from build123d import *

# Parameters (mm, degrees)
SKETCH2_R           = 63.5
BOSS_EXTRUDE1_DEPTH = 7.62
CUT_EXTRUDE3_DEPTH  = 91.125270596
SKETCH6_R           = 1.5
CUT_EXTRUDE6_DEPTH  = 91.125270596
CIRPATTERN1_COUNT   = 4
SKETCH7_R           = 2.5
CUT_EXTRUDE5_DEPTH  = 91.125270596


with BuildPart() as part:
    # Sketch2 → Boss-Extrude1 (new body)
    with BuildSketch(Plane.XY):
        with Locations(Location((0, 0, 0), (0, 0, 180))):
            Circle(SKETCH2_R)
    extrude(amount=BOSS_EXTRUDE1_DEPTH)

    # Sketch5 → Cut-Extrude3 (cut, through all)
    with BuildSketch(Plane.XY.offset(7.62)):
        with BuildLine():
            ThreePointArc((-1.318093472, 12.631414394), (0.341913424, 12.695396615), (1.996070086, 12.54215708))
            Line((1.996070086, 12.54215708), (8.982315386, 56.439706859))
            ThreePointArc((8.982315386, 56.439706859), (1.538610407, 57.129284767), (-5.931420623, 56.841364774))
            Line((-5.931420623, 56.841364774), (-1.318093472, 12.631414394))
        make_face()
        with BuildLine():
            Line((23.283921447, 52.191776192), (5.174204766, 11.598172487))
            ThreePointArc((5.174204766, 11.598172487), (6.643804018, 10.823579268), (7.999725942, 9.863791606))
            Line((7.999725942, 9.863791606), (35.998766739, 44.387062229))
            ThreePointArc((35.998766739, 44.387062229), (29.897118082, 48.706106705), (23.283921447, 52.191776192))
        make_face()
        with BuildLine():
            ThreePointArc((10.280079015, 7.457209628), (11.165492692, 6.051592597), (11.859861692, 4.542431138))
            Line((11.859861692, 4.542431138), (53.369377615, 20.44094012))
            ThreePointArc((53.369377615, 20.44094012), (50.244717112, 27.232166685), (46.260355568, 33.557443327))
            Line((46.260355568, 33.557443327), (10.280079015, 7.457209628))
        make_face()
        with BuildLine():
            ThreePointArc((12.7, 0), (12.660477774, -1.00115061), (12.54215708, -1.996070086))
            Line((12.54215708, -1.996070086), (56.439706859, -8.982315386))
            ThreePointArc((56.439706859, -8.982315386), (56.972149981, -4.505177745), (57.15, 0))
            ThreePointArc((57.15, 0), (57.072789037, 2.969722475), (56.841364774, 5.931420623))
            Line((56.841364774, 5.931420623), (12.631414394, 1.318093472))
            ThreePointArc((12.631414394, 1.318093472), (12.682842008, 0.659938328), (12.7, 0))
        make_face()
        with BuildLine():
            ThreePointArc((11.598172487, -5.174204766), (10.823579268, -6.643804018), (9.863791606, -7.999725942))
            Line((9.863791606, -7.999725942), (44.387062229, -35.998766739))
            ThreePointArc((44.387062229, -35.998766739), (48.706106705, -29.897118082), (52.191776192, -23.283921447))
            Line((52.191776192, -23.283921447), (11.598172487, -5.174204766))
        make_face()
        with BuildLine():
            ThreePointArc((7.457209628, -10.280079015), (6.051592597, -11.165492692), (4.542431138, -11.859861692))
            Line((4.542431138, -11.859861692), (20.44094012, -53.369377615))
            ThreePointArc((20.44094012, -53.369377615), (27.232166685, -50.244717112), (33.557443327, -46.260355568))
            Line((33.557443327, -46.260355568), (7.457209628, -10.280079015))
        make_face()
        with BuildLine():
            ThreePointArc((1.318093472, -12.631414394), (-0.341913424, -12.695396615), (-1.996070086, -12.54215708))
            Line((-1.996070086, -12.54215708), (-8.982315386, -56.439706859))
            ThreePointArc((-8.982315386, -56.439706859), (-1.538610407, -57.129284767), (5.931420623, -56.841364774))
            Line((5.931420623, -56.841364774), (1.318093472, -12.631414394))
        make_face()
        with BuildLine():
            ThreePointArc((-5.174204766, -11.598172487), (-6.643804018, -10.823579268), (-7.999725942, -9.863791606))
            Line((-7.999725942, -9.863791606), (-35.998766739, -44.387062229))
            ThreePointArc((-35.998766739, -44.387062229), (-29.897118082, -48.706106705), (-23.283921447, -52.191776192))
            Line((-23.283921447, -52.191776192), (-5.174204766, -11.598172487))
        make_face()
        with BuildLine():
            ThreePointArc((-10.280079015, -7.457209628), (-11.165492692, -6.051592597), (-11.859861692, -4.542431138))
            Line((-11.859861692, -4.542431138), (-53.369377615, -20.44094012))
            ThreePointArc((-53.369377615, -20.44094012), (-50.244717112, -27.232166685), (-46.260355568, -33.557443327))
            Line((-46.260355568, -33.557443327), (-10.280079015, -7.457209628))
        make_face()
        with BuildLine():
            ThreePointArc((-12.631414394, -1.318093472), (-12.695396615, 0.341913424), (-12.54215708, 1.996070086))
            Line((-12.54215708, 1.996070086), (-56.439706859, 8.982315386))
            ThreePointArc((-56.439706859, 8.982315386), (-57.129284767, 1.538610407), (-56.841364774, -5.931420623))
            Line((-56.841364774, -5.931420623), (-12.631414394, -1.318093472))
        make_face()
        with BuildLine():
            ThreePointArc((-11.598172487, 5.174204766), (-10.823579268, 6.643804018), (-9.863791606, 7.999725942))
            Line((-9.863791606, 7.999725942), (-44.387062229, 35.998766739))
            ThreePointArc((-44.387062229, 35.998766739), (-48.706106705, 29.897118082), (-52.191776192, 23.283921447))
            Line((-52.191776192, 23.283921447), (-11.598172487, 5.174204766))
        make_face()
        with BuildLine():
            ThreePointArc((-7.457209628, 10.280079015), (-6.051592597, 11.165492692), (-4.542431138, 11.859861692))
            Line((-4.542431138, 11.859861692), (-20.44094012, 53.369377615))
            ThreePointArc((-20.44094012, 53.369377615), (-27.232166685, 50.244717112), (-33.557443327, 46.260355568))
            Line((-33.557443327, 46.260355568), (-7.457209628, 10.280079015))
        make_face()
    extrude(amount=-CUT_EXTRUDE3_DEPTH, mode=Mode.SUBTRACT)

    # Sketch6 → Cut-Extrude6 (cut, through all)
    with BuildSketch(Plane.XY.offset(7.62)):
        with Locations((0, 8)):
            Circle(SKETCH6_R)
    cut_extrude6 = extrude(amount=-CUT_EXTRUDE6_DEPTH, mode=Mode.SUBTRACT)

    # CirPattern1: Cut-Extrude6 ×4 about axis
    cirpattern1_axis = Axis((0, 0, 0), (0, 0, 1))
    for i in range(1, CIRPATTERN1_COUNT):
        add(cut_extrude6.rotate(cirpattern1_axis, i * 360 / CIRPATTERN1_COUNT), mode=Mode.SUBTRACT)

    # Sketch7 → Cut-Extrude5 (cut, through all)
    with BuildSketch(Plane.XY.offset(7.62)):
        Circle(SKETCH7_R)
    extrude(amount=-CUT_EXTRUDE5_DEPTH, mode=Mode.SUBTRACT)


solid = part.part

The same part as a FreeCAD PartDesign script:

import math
import FreeCAD as App
import Part
import Sketcher
Q = App.Units.Quantity

doc = App.newDocument("Part")
body = doc.addObject("PartDesign::Body", "Body")

# Sketch on XY plane
sketch1 = body.newObject("Sketcher::SketchObject", "Sketch")
sketch1.AttachmentSupport = (doc.getObject("XY_Plane"), [""])
sketch1.MapMode = "FlatFace"
sketch1.addGeometry(Part.Circle(App.Vector(0, 0, 0), App.Vector(0, 0, 1), 64), False)
sketch1.addConstraint(Sketcher.Constraint("Coincident", 0, 3, -1, 1))
sketch1.addConstraint(Sketcher.Constraint("Diameter", 0, Q("5 in")))
pad1 = body.newObject("PartDesign::Pad", "Pad")
pad1.Profile = sketch1
pad1.Length = Q("0.3 in")

# Sketch on XY plane
sketch2 = body.newObject("Sketcher::SketchObject", "Sketch001")
sketch2.AttachmentSupport = (doc.getObject("XY_Plane"), [""])
sketch2.MapMode = "FlatFace"
sketch2.AttachmentOffset = App.Placement(App.Vector(0, 0, 0.3 * 25.4), App.Rotation())
sketch2.addGeometry(Part.ArcOfCircle(Part.Circle(App.Vector(0, 0, 0), App.Vector(0, 0, 1), 12.7), math.radians(80.96), math.radians(95.96)), False)
sketch2.addGeometry(Part.LineSegment(App.Vector(2, 12.5, 0), App.Vector(9, 56.4, 0)), False)
sketch2.addGeometry(Part.ArcOfCircle(Part.Circle(App.Vector(0, 0, 0), App.Vector(0, 0, 1), 57.2), math.radians(80.96), math.radians(95.96)), False)
sketch2.addGeometry(Part.LineSegment(App.Vector(-5.9, 56.8, 0), App.Vector(-1.3, 12.6, 0)), False)
sketch2.addGeometry(Part.LineSegment(App.Vector(23.3, 52.2, 0), App.Vector(5.2, 11.6, 0)), False)
sketch2.addGeometry(Part.ArcOfCircle(Part.Circle(App.Vector(0, 0, 0), App.Vector(0, 0, 1), 12.7), math.radians(50.96), math.radians(65.96)), False)
sketch2.addGeometry(Part.LineSegment(App.Vector(8, 9.9, 0), App.Vector(36, 44.4, 0)), False)
sketch2.addGeometry(Part.ArcOfCircle(Part.Circle(App.Vector(0, 0, 0), App.Vector(0, 0, 1), 57.2), math.radians(50.96), math.radians(65.96)), False)
sketch2.addGeometry(Part.ArcOfCircle(Part.Circle(App.Vector(0, 0, 0), App.Vector(0, 0, 1), 12.7), math.radians(20.96), math.radians(35.96)), False)
sketch2.addGeometry(Part.LineSegment(App.Vector(11.9, 4.5, 0), App.Vector(53.4, 20.4, 0)), False)
sketch2.addGeometry(Part.ArcOfCircle(Part.Circle(App.Vector(0, 0, 0), App.Vector(0, 0, 1), 57.1), math.radians(20.96), math.radians(35.96)), False)
sketch2.addGeometry(Part.LineSegment(App.Vector(46.3, 33.6, 0), App.Vector(10.3, 7.5, 0)), False)
sketch2.addGeometry(Part.ArcOfCircle(Part.Circle(App.Vector(0, 0, 0), App.Vector(0, 0, 1), 12.7), math.radians(-9.04), math.radians(0)), False)
sketch2.addGeometry(Part.LineSegment(App.Vector(12.5, -2, 0), App.Vector(56.4, -9, 0)), False)
sketch2.addGeometry(Part.ArcOfCircle(Part.Circle(App.Vector(0, 0, 0), App.Vector(0, 0, 1), 57.2), math.radians(-9.04), math.radians(0)), False)
sketch2.addGeometry(Part.ArcOfCircle(Part.Circle(App.Vector(0, 0, 0), App.Vector(0, 0, 1), 57.1), math.radians(0), math.radians(5.96)), False)
sketch2.addGeometry(Part.LineSegment(App.Vector(56.8, 5.9, 0), App.Vector(12.6, 1.3, 0)), False)
sketch2.addGeometry(Part.ArcOfCircle(Part.Circle(App.Vector(0, 0, 0), App.Vector(0, 0, 1), 12.7), math.radians(0), math.radians(5.96)), False)
sketch2.addGeometry(Part.ArcOfCircle(Part.Circle(App.Vector(0, 0, 0), App.Vector(0, 0, 1), 12.7), math.radians(-39.04), math.radians(-24.04)), False)
sketch2.addGeometry(Part.LineSegment(App.Vector(9.9, -8, 0), App.Vector(44.4, -36, 0)), False)
sketch2.addGeometry(Part.ArcOfCircle(Part.Circle(App.Vector(0, 0, 0), App.Vector(0, 0, 1), 57.2), math.radians(-39.04), math.radians(-24.04)), False)
sketch2.addGeometry(Part.LineSegment(App.Vector(52.2, -23.3, 0), App.Vector(11.6, -5.2, 0)), False)
sketch2.addGeometry(Part.ArcOfCircle(Part.Circle(App.Vector(0, 0, 0), App.Vector(0, 0, 1), 12.7), math.radians(-69.04), math.radians(-54.04)), False)
sketch2.addGeometry(Part.LineSegment(App.Vector(4.5, -11.9, 0), App.Vector(20.4, -53.4, 0)), False)
sketch2.addGeometry(Part.ArcOfCircle(Part.Circle(App.Vector(0, 0, 0), App.Vector(0, 0, 1), 57.1), math.radians(-69.04), math.radians(-54.04)), False)
sketch2.addGeometry(Part.LineSegment(App.Vector(33.6, -46.3, 0), App.Vector(7.5, -10.3, 0)), False)
sketch2.addGeometry(Part.ArcOfCircle(Part.Circle(App.Vector(0, 0, 0), App.Vector(0, 0, 1), 12.7), math.radians(-99.04), math.radians(-84.04)), False)
sketch2.addGeometry(Part.LineSegment(App.Vector(-2, -12.5, 0), App.Vector(-9, -56.4, 0)), False)
sketch2.addGeometry(Part.ArcOfCircle(Part.Circle(App.Vector(0, 0, 0), App.Vector(0, 0, 1), 57.2), math.radians(-99.04), math.radians(-84.04)), False)
sketch2.addGeometry(Part.LineSegment(App.Vector(5.9, -56.8, 0), App.Vector(1.3, -12.6, 0)), False)
sketch2.addGeometry(Part.ArcOfCircle(Part.Circle(App.Vector(0, 0, 0), App.Vector(0, 0, 1), 12.7), math.radians(-129.04), math.radians(-114.04)), False)
sketch2.addGeometry(Part.LineSegment(App.Vector(-8, -9.9, 0), App.Vector(-36, -44.4, 0)), False)
sketch2.addGeometry(Part.ArcOfCircle(Part.Circle(App.Vector(0, 0, 0), App.Vector(0, 0, 1), 57.2), math.radians(-129.04), math.radians(-114.04)), False)
sketch2.addGeometry(Part.LineSegment(App.Vector(-23.3, -52.2, 0), App.Vector(-5.2, -11.6, 0)), False)
sketch2.addGeometry(Part.ArcOfCircle(Part.Circle(App.Vector(0, 0, 0), App.Vector(0, 0, 1), 12.7), math.radians(-159.04), math.radians(-144.04)), False)
sketch2.addGeometry(Part.LineSegment(App.Vector(-11.9, -4.5, 0), App.Vector(-53.4, -20.4, 0)), False)
sketch2.addGeometry(Part.ArcOfCircle(Part.Circle(App.Vector(0, 0, 0), App.Vector(0, 0, 1), 57.1), math.radians(-159.04), math.radians(-144.04)), False)
sketch2.addGeometry(Part.LineSegment(App.Vector(-46.3, -33.6, 0), App.Vector(-10.3, -7.5, 0)), False)
sketch2.addGeometry(Part.ArcOfCircle(Part.Circle(App.Vector(0, 0, 0), App.Vector(0, 0, 1), 12.7), math.radians(170.96), math.radians(185.96)), False)
sketch2.addGeometry(Part.LineSegment(App.Vector(-12.5, 2, 0), App.Vector(-56.4, 9, 0)), False)
sketch2.addGeometry(Part.ArcOfCircle(Part.Circle(App.Vector(0, 0, 0), App.Vector(0, 0, 1), 57.2), math.radians(170.96), math.radians(185.96)), False)
sketch2.addGeometry(Part.LineSegment(App.Vector(-56.8, -5.9, 0), App.Vector(-12.6, -1.3, 0)), False)
sketch2.addGeometry(Part.ArcOfCircle(Part.Circle(App.Vector(0, 0, 0), App.Vector(0, 0, 1), 12.7), math.radians(140.96), math.radians(155.96)), False)
sketch2.addGeometry(Part.LineSegment(App.Vector(-9.9, 8, 0), App.Vector(-44.4, 36, 0)), False)
sketch2.addGeometry(Part.ArcOfCircle(Part.Circle(App.Vector(0, 0, 0), App.Vector(0, 0, 1), 57.2), math.radians(140.96), math.radians(155.96)), False)
sketch2.addGeometry(Part.LineSegment(App.Vector(-52.2, 23.3, 0), App.Vector(-11.6, 5.2, 0)), False)
sketch2.addGeometry(Part.ArcOfCircle(Part.Circle(App.Vector(0, 0, 0), App.Vector(0, 0, 1), 12.7), math.radians(110.96), math.radians(125.96)), False)
sketch2.addGeometry(Part.LineSegment(App.Vector(-4.5, 11.9, 0), App.Vector(-20.4, 53.4, 0)), False)
sketch2.addGeometry(Part.ArcOfCircle(Part.Circle(App.Vector(0, 0, 0), App.Vector(0, 0, 1), 57.1), math.radians(110.96), math.radians(125.96)), False)
sketch2.addGeometry(Part.LineSegment(App.Vector(-33.6, 46.3, 0), App.Vector(-7.5, 10.3, 0)), False)
sketch2.addConstraint(Sketcher.Constraint("Coincident", 0, 1, 1, 1))
sketch2.addConstraint(Sketcher.Constraint("Coincident", 1, 2, 2, 1))
sketch2.addConstraint(Sketcher.Constraint("Coincident", 2, 2, 3, 1))
sketch2.addConstraint(Sketcher.Constraint("Coincident", 3, 2, 0, 2))
sketch2.addConstraint(Sketcher.Constraint("Coincident", 4, 2, 5, 2))
sketch2.addConstraint(Sketcher.Constraint("Coincident", 5, 1, 6, 1))
sketch2.addConstraint(Sketcher.Constraint("Coincident", 6, 2, 7, 1))
sketch2.addConstraint(Sketcher.Constraint("Coincident", 7, 2, 4, 1))
sketch2.addConstraint(Sketcher.Constraint("Coincident", 8, 1, 9, 1))
sketch2.addConstraint(Sketcher.Constraint("Coincident", 9, 2, 10, 1))
sketch2.addConstraint(Sketcher.Constraint("Coincident", 10, 2, 11, 1))
sketch2.addConstraint(Sketcher.Constraint("Coincident", 11, 2, 8, 2))
sketch2.addConstraint(Sketcher.Constraint("Coincident", 12, 1, 13, 1))
sketch2.addConstraint(Sketcher.Constraint("Coincident", 13, 2, 14, 1))
sketch2.addConstraint(Sketcher.Constraint("Tangent", 14, 2, 15, 1))
sketch2.addConstraint(Sketcher.Constraint("Coincident", 15, 2, 16, 1))
sketch2.addConstraint(Sketcher.Constraint("Coincident", 16, 2, 17, 2))
sketch2.addConstraint(Sketcher.Constraint("Tangent", 17, 1, 12, 2))
sketch2.addConstraint(Sketcher.Constraint("Coincident", 18, 1, 19, 1))
sketch2.addConstraint(Sketcher.Constraint("Coincident", 19, 2, 20, 1))
sketch2.addConstraint(Sketcher.Constraint("Coincident", 20, 2, 21, 1))
sketch2.addConstraint(Sketcher.Constraint("Coincident", 21, 2, 18, 2))
sketch2.addConstraint(Sketcher.Constraint("Coincident", 22, 1, 23, 1))
sketch2.addConstraint(Sketcher.Constraint("Coincident", 23, 2, 24, 1))
sketch2.addConstraint(Sketcher.Constraint("Coincident", 24, 2, 25, 1))
sketch2.addConstraint(Sketcher.Constraint("Coincident", 25, 2, 22, 2))
sketch2.addConstraint(Sketcher.Constraint("Coincident", 26, 1, 27, 1))
sketch2.addConstraint(Sketcher.Constraint("Coincident", 27, 2, 28, 1))
sketch2.addConstraint(Sketcher.Constraint("Coincident", 28, 2, 29, 1))
sketch2.addConstraint(Sketcher.Constraint("Coincident", 29, 2, 26, 2))
sketch2.addConstraint(Sketcher.Constraint("Coincident", 30, 1, 31, 1))
sketch2.addConstraint(Sketcher.Constraint("Coincident", 31, 2, 32, 1))
sketch2.addConstraint(Sketcher.Constraint("Coincident", 32, 2, 33, 1))
sketch2.addConstraint(Sketcher.Constraint("Coincident", 33, 2, 30, 2))
sketch2.addConstraint(Sketcher.Constraint("Coincident", 34, 1, 35, 1))
sketch2.addConstraint(Sketcher.Constraint("Coincident", 35, 2, 36, 1))
sketch2.addConstraint(Sketcher.Constraint("Coincident", 36, 2, 37, 1))
sketch2.addConstraint(Sketcher.Constraint("Coincident", 37, 2, 34, 2))
sketch2.addConstraint(Sketcher.Constraint("Coincident", 38, 1, 39, 1))
sketch2.addConstraint(Sketcher.Constraint("Coincident", 39, 2, 40, 1))
sketch2.addConstraint(Sketcher.Constraint("Coincident", 40, 2, 41, 1))
sketch2.addConstraint(Sketcher.Constraint("Coincident", 41, 2, 38, 2))
sketch2.addConstraint(Sketcher.Constraint("Coincident", 42, 1, 43, 1))
sketch2.addConstraint(Sketcher.Constraint("Coincident", 43, 2, 44, 1))
sketch2.addConstraint(Sketcher.Constraint("Coincident", 44, 2, 45, 1))
sketch2.addConstraint(Sketcher.Constraint("Coincident", 45, 2, 42, 2))
sketch2.addConstraint(Sketcher.Constraint("Coincident", 46, 1, 47, 1))
sketch2.addConstraint(Sketcher.Constraint("Coincident", 47, 2, 48, 1))
sketch2.addConstraint(Sketcher.Constraint("Coincident", 48, 2, 49, 1))
sketch2.addConstraint(Sketcher.Constraint("Coincident", 49, 2, 46, 2))
sketch2.addConstraint(Sketcher.Constraint("Coincident", 0, 3, -1, 1))
sketch2.addConstraint(Sketcher.Constraint("Coincident", 2, 3, -1, 1))
sketch2.addConstraint(Sketcher.Constraint("Coincident", 5, 3, -1, 1))
sketch2.addConstraint(Sketcher.Constraint("Coincident", 7, 3, -1, 1))
sketch2.addConstraint(Sketcher.Constraint("Coincident", 8, 3, -1, 1))
sketch2.addConstraint(Sketcher.Constraint("Coincident", 10, 3, -1, 1))
sketch2.addConstraint(Sketcher.Constraint("Coincident", 12, 3, -1, 1))
sketch2.addConstraint(Sketcher.Constraint("Coincident", 14, 3, -1, 1))
sketch2.addConstraint(Sketcher.Constraint("Coincident", 18, 3, -1, 1))
sketch2.addConstraint(Sketcher.Constraint("Coincident", 20, 3, -1, 1))
sketch2.addConstraint(Sketcher.Constraint("Coincident", 22, 3, -1, 1))
sketch2.addConstraint(Sketcher.Constraint("Coincident", 24, 3, -1, 1))
sketch2.addConstraint(Sketcher.Constraint("Coincident", 26, 3, -1, 1))
sketch2.addConstraint(Sketcher.Constraint("Coincident", 28, 3, -1, 1))
sketch2.addConstraint(Sketcher.Constraint("Coincident", 30, 3, -1, 1))
sketch2.addConstraint(Sketcher.Constraint("Coincident", 32, 3, -1, 1))
sketch2.addConstraint(Sketcher.Constraint("Coincident", 34, 3, -1, 1))
sketch2.addConstraint(Sketcher.Constraint("Coincident", 36, 3, -1, 1))
sketch2.addConstraint(Sketcher.Constraint("Coincident", 38, 3, -1, 1))
sketch2.addConstraint(Sketcher.Constraint("Coincident", 40, 3, -1, 1))
sketch2.addConstraint(Sketcher.Constraint("Coincident", 42, 3, -1, 1))
sketch2.addConstraint(Sketcher.Constraint("Coincident", 44, 3, -1, 1))
sketch2.addConstraint(Sketcher.Constraint("Coincident", 46, 3, -1, 1))
sketch2.addConstraint(Sketcher.Constraint("Coincident", 48, 3, -1, 1))
sketch2.addConstraint(Sketcher.Constraint("Equal", 0, 5))
sketch2.addConstraint(Sketcher.Constraint("Equal", 2, 7))
sketch2.addConstraint(Sketcher.Constraint("Equal", 5, 8))
sketch2.addConstraint(Sketcher.Constraint("Equal", 7, 10))
sketch2.addConstraint(Sketcher.Constraint("Equal", 8, 12))
sketch2.addConstraint(Sketcher.Constraint("Equal", 10, 14))
sketch2.addConstraint(Sketcher.Constraint("Equal", 14, 15))
sketch2.addConstraint(Sketcher.Constraint("Equal", 12, 17))
sketch2.addConstraint(Sketcher.Constraint("Equal", 17, 18))
sketch2.addConstraint(Sketcher.Constraint("Equal", 15, 20))
sketch2.addConstraint(Sketcher.Constraint("Equal", 18, 22))
sketch2.addConstraint(Sketcher.Constraint("Equal", 20, 24))
sketch2.addConstraint(Sketcher.Constraint("Equal", 22, 26))
sketch2.addConstraint(Sketcher.Constraint("Equal", 24, 28))
sketch2.addConstraint(Sketcher.Constraint("Equal", 26, 30))
sketch2.addConstraint(Sketcher.Constraint("Equal", 28, 32))
sketch2.addConstraint(Sketcher.Constraint("Equal", 30, 34))
sketch2.addConstraint(Sketcher.Constraint("Equal", 32, 36))
sketch2.addConstraint(Sketcher.Constraint("Equal", 34, 38))
sketch2.addConstraint(Sketcher.Constraint("Equal", 36, 40))
sketch2.addConstraint(Sketcher.Constraint("Equal", 38, 42))
sketch2.addConstraint(Sketcher.Constraint("Equal", 40, 44))
sketch2.addConstraint(Sketcher.Constraint("Equal", 42, 46))
sketch2.addConstraint(Sketcher.Constraint("Equal", 44, 48))
sketch2.addConstraint(Sketcher.Constraint("PointOnObject", 14, 2, -1))
sketch2.addConstraint(Sketcher.Constraint("PointOnObject", 17, 1, -1))
sketch2.addConstraint(Sketcher.Constraint("Perpendicular", 1, 13))
sketch2.addConstraint(Sketcher.Constraint("Perpendicular", 3, 16))
sketch2.addConstraint(Sketcher.Constraint("Perpendicular", 6, 19))
sketch2.addConstraint(Sketcher.Constraint("Perpendicular", 4, 21))
sketch2.addConstraint(Sketcher.Constraint("Perpendicular", 9, 23))
sketch2.addConstraint(Sketcher.Constraint("Perpendicular", 11, 25))
sketch2.addConstraint(Sketcher.Constraint("Perpendicular", 13, 27))
sketch2.addConstraint(Sketcher.Constraint("Perpendicular", 16, 29))
sketch2.addConstraint(Sketcher.Constraint("Perpendicular", 19, 31))
sketch2.addConstraint(Sketcher.Constraint("Perpendicular", 21, 33))
sketch2.addConstraint(Sketcher.Constraint("Perpendicular", 23, 35))
sketch2.addConstraint(Sketcher.Constraint("Perpendicular", 25, 37))
sketch2.addConstraint(Sketcher.Constraint("Perpendicular", 27, 39))
sketch2.addConstraint(Sketcher.Constraint("Perpendicular", 29, 41))
sketch2.addConstraint(Sketcher.Constraint("Perpendicular", 31, 43))
sketch2.addConstraint(Sketcher.Constraint("Perpendicular", 33, 45))
sketch2.addConstraint(Sketcher.Constraint("Perpendicular", 35, 47))
sketch2.addConstraint(Sketcher.Constraint("Perpendicular", 37, 49))
sketch2.addConstraint(Sketcher.Constraint("Radius", 0, Q("0.5 in")))
sketch2.addConstraint(Sketcher.Constraint("Radius", 2, Q("2.25 in")))
sketch2.addConstraint(Sketcher.Constraint("DistanceX", -1, 1, 0, 1, 1.99607))
sketch2.addConstraint(Sketcher.Constraint("DistanceX", 2, 2, -1, 1, 5.931421))
sketch2.addConstraint(Sketcher.Constraint("DistanceY", -1, 1, 5, 1, 9.863792))
sketch2.addConstraint(Sketcher.Constraint("DistanceX", -1, 1, 7, 2, 23.283921))
sketch2.addConstraint(Sketcher.Constraint("DistanceX", -1, 1, 8, 1, 11.859862))
sketch2.addConstraint(Sketcher.Constraint("DistanceY", -1, 1, 9, 2, 20.44094))
sketch2.addConstraint(Sketcher.Constraint("DistanceX", -1, 1, 11, 2, 10.280079))
sketch2.addConstraint(Sketcher.Constraint("DistanceY", 12, 1, -1, 1, 1.99607))
sketch2.addConstraint(Sketcher.Constraint("DistanceY", -1, 1, 15, 2, 5.931421))
sketch2.addConstraint(Sketcher.Constraint("DistanceX", -1, 1, 18, 1, 9.863792))
sketch2.addConstraint(Sketcher.Constraint("DistanceY", 20, 2, -1, 1, 23.283921))
sketch2.addConstraint(Sketcher.Constraint("DistanceX", -1, 1, 22, 1, 4.542431))
sketch2.addConstraint(Sketcher.Constraint("DistanceX", -1, 1, 25, 2, 7.45721))
sketch2.addConstraint(Sketcher.Constraint("DistanceX", 26, 1, -1, 1, 1.99607))
sketch2.addConstraint(Sketcher.Constraint("DistanceX", -1, 1, 28, 2, 5.931421))
sketch2.addConstraint(Sketcher.Constraint("DistanceY", 30, 1, -1, 1, 9.863792))
sketch2.addConstraint(Sketcher.Constraint("DistanceX", 32, 2, -1, 1, 23.283921))
sketch2.addConstraint(Sketcher.Constraint("DistanceX", 34, 1, -1, 1, 11.859862))
sketch2.addConstraint(Sketcher.Constraint("DistanceX", 37, 2, -1, 1, 10.280079))
sketch2.addConstraint(Sketcher.Constraint("DistanceY", -1, 1, 38, 1, 1.99607))
sketch2.addConstraint(Sketcher.Constraint("DistanceY", 40, 2, -1, 1, 5.931421))
sketch2.addConstraint(Sketcher.Constraint("DistanceX", 42, 1, -1, 1, 9.863792))
sketch2.addConstraint(Sketcher.Constraint("DistanceY", -1, 1, 44, 2, 23.283921))
sketch2.addConstraint(Sketcher.Constraint("DistanceX", 46, 1, -1, 1, 4.542431))
sketch2.addConstraint(Sketcher.Constraint("DistanceX", 49, 2, -1, 1, 7.45721))
sketch2.addConstraint(Sketcher.Constraint("DistanceX", -1, 1, 1, 2, 8.982315))
sketch2.addConstraint(Sketcher.Constraint("DistanceX", 3, 2, -1, 1, 1.318093))
sketch2.addConstraint(Sketcher.Constraint("DistanceX", -1, 1, 4, 2, 5.174205))
sketch2.addConstraint(Sketcher.Constraint("DistanceX", -1, 1, 6, 2, 35.998767))
sketch2.addConstraint(Sketcher.Constraint("DistanceX", -1, 1, 10, 2, 46.260356))
pocket1 = body.newObject("PartDesign::Pocket", "Pocket")
pocket1.Profile = sketch2
pocket1.Type = "ThroughAll"

# Sketch on XY plane
sketch3 = body.newObject("Sketcher::SketchObject", "Sketch002")
sketch3.AttachmentSupport = (doc.getObject("XY_Plane"), [""])
sketch3.MapMode = "FlatFace"
sketch3.AttachmentOffset = App.Placement(App.Vector(0, 0, 0.3 * 25.4), App.Rotation())
sketch3.addGeometry(Part.Circle(App.Vector(0, 8, 0), App.Vector(0, 0, 1), 1.5), False)
sketch3.addConstraint(Sketcher.Constraint("PointOnObject", 0, 3, -2))
sketch3.addConstraint(Sketcher.Constraint("Diameter", 0, 3.0))
sketch3.addConstraint(Sketcher.Constraint("DistanceY", -1, 1, 0, 3, 8.0))
pocket2 = body.newObject("PartDesign::Pocket", "Pocket001")
pocket2.Profile = sketch3
pocket2.Type = "ThroughAll"
doc.recompute()

polarpattern = body.newObject("PartDesign::PolarPattern", "PolarPattern")
polarpattern.Originals = [pocket2]
polarpattern.Axis = (doc.getObject("Z_Axis"), [""])
polarpattern.Angle = 360
polarpattern.Occurrences = 4
body.Tip = polarpattern

# Sketch on XY plane
sketch4 = body.newObject("Sketcher::SketchObject", "Sketch003")
sketch4.AttachmentSupport = (doc.getObject("XY_Plane"), [""])
sketch4.MapMode = "FlatFace"
sketch4.AttachmentOffset = App.Placement(App.Vector(0, 0, 0.3 * 25.4), App.Rotation())
sketch4.addGeometry(Part.Circle(App.Vector(0, 0, 0), App.Vector(0, 0, 1), 2.5), False)
sketch4.addConstraint(Sketcher.Constraint("Coincident", 0, 3, -1, 1))
sketch4.addConstraint(Sketcher.Constraint("Diameter", 0, 5.0))
pocket3 = body.newObject("PartDesign::Pocket", "Pocket002")
pocket3.Profile = sketch4
pocket3.Type = "ThroughAll"

doc.recompute()
